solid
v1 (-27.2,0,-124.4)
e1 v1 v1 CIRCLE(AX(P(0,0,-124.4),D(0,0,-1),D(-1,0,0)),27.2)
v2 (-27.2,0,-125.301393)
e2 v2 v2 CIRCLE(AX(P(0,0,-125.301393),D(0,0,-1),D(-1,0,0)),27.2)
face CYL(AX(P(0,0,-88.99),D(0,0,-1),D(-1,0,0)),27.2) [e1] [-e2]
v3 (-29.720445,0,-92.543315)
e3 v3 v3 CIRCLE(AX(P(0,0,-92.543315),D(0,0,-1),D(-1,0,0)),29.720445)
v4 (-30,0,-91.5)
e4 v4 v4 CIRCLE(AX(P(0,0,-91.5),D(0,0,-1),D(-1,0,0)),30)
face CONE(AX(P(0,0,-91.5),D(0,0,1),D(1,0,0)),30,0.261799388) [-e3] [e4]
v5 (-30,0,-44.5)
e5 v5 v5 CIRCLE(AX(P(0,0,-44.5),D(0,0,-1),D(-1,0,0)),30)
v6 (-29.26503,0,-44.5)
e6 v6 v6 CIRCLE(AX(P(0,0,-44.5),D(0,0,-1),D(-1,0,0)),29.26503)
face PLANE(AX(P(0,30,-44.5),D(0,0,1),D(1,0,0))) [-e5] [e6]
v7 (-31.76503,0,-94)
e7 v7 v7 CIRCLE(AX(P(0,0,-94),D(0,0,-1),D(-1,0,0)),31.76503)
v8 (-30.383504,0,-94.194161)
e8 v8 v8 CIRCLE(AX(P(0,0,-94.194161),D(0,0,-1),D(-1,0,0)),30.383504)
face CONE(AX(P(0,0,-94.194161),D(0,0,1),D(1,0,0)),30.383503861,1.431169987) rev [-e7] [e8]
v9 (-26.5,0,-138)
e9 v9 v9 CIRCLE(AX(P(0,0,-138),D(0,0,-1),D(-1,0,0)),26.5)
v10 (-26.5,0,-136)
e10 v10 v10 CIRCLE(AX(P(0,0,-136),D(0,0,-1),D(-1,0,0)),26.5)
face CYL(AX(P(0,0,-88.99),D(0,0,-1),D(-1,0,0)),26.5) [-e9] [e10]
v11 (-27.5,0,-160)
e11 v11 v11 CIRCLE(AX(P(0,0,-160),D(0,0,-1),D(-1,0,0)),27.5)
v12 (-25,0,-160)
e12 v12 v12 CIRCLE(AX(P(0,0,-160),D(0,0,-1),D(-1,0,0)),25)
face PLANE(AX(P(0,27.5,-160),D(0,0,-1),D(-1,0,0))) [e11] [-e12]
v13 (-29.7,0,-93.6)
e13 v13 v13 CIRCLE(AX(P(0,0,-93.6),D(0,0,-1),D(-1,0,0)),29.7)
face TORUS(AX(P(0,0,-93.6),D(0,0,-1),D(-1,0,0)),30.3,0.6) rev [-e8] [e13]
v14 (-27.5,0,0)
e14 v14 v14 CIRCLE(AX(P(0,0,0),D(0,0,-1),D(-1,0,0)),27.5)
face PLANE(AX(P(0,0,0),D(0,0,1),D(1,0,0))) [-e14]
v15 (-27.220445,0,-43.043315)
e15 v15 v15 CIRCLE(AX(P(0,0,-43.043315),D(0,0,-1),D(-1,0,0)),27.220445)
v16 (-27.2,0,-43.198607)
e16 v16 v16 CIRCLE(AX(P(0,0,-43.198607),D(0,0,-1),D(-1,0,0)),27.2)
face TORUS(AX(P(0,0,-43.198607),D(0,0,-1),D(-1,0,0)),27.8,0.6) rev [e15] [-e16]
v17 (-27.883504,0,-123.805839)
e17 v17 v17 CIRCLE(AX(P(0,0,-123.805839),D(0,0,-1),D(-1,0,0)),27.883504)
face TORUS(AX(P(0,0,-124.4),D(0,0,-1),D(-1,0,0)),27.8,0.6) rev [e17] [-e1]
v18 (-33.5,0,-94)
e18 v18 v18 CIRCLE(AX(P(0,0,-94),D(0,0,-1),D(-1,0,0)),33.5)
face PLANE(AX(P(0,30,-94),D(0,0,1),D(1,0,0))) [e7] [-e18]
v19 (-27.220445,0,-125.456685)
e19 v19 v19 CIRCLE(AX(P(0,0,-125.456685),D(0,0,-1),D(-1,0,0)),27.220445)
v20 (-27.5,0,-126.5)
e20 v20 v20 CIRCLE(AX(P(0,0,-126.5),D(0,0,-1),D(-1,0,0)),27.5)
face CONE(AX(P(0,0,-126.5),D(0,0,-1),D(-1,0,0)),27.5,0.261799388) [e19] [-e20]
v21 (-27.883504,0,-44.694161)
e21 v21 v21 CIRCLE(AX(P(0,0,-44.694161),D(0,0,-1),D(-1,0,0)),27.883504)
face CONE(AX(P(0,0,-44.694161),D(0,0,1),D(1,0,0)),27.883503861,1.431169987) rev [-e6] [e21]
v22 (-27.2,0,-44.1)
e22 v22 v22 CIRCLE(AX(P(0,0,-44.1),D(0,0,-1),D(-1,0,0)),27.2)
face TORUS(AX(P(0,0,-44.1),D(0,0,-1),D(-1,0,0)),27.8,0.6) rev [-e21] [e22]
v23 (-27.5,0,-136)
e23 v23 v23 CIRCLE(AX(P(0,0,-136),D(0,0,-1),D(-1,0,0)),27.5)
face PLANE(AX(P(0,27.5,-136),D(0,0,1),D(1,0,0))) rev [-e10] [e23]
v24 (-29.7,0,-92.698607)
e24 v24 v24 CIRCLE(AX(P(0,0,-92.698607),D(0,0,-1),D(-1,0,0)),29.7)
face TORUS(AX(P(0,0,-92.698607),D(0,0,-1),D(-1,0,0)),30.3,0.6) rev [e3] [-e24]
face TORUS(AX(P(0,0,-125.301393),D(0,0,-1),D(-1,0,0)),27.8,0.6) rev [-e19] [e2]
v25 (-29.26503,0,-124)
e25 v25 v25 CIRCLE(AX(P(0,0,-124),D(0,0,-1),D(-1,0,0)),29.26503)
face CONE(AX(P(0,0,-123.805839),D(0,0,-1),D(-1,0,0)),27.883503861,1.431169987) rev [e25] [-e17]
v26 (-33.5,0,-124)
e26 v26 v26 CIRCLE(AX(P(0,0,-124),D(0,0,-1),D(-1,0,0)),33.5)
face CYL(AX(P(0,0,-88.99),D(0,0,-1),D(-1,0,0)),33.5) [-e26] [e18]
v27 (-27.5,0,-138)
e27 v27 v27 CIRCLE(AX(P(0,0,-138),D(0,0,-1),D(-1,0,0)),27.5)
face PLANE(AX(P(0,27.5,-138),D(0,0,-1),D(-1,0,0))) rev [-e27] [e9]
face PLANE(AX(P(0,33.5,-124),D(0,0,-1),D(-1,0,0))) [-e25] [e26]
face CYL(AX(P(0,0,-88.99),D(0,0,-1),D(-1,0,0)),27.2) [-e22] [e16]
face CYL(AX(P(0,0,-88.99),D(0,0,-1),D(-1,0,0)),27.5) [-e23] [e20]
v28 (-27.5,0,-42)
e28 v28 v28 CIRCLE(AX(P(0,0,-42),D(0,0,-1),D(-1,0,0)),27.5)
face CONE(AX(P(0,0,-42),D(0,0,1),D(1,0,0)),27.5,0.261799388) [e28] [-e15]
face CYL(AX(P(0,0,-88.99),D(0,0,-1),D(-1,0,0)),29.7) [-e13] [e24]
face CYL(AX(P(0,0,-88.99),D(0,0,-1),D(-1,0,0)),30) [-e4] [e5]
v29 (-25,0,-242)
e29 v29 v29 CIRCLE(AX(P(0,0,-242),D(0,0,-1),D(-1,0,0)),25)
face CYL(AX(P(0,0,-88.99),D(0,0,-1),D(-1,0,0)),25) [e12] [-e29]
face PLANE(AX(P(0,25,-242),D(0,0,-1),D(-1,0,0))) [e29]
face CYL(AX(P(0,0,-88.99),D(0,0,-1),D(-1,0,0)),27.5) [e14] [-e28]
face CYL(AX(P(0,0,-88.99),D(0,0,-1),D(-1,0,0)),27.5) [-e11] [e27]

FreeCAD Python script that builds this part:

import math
import FreeCAD as App
import Part
import Sketcher
from FreeCAD import Vector
Q = App.Units.Quantity


def add_polygon(sketch, points):
    """Adds a closed chain of lines whose ends are joined by coincident constraints."""
    first, n = sketch.GeometryCount, len(points)
    for a, b in zip(points, points[1:] + points[:1]):
        sketch.addGeometry(Part.LineSegment(App.Vector(*a, 0), App.Vector(*b, 0)), False)
    for i in range(n):
        sketch.addConstraint(Sketcher.Constraint("Coincident", first + i, 2, first + (i + 1) % n, 1))

doc = App.newDocument("Part")
body = doc.addObject("PartDesign::Body", "Body")

# Sketch on YZ plane
sketch1 = doc.addObject("Sketcher::SketchObject", "Sketch")
body.addObject(sketch1)
sketch1.AttachmentSupport = (doc.YZ_Plane, [""])
sketch1.MapMode = "FlatFace"
add_polygon(sketch1, [(27.5, 0), (0, 0), (0, -242), (25, -242), (25, -160), (27.5, -160), (27.5, -124), (33.5, -124), (33.5, -94), (30, -94), (30, -44.5), (27.5, -44.5)])  # lines 0-11
sketch1.addConstraint(Sketcher.Constraint("Horizontal", 0))
sketch1.addConstraint(Sketcher.Constraint("Vertical", 1))
sketch1.addConstraint(Sketcher.Constraint("Horizontal", 2))
sketch1.addConstraint(Sketcher.Constraint("Vertical", 3))
sketch1.addConstraint(Sketcher.Constraint("Horizontal", 4))
sketch1.addConstraint(Sketcher.Constraint("Vertical", 5))
sketch1.addConstraint(Sketcher.Constraint("Horizontal", 6))
sketch1.addConstraint(Sketcher.Constraint("Vertical", 7))
sketch1.addConstraint(Sketcher.Constraint("Horizontal", 8))
sketch1.addConstraint(Sketcher.Constraint("Vertical", 9))
sketch1.addConstraint(Sketcher.Constraint("Horizontal", 10))
sketch1.addConstraint(Sketcher.Constraint("Vertical", 11))
sketch1.addConstraint(Sketcher.Constraint("Coincident", 0, 2, -1, 1))
sketch1.addConstraint(Sketcher.Constraint("Vertical", 5, 2, 10, 2))
sketch1.addConstraint(Sketcher.Constraint("Equal", 4, 10))
sketch1.addConstraint(Sketcher.Constraint("DistanceX", 2, 1, 2, 2, Q("25 mm")))
sketch1.addConstraint(Sketcher.Constraint("DistanceX", 6, 1, 6, 2, Q("6 mm")))
sketch1.addConstraint(Sketcher.Constraint("DistanceY", 1, 2, 1, 1, Q("242 mm")))
sketch1.addConstraint(Sketcher.Constraint("DistanceY", 3, 1, 3, 2, Q("82 mm")))
sketch1.addConstraint(Sketcher.Constraint("DistanceY", 5, 1, 5, 2, Q("36 mm")))
sketch1.addConstraint(Sketcher.Constraint("DistanceY", 7, 1, 7, 2, Q("30 mm")))
sketch1.addConstraint(Sketcher.Constraint("DistanceX", 0, 2, 0, 1, Q("27.5 mm")))
sketch1.addConstraint(Sketcher.Constraint("DistanceY", 9, 1, 9, 2, Q("49.5 mm")))
revolution = doc.addObject("PartDesign::Revolution", "Revolution")
body.addObject(revolution)
revolution.Profile = sketch1
revolution.ReferenceAxis = (sketch1, ["V_Axis"])
revolution.Angle = 360

# Sketch on YZ plane
sketch2 = doc.addObject("Sketcher::SketchObject", "Sketch001")
body.addObject(sketch2)
sketch2.AttachmentSupport = (doc.YZ_Plane, [""])
sketch2.MapMode = "FlatFace"
sketch2.addGeometry(Part.LineSegment(Vector(27.5, -42, 0), Vector(27.22, -43.04, 0)), False)
sketch2.addGeometry(Part.ArcOfCircle(Part.Circle(Vector(27.8, -43.2, 0), Vector(0, 0, 1), 0.6), math.radians(165), math.radians(180)), False)
sketch2.addGeometry(Part.LineSegment(Vector(27.2, -43.2, 0), Vector(27.2, -44.1, 0)), False)
sketch2.addGeometry(Part.ArcOfCircle(Part.Circle(Vector(27.8, -44.1, 0), Vector(0, 0, 1), 0.6), math.radians(-180), math.radians(-82)), False)
sketch2.addGeometry(Part.LineSegment(Vector(27.88, -44.69, 0), Vector(29.27, -44.5, 0)), False)
sketch2.addGeometry(Part.LineSegment(Vector(29.27, -44.5, 0), Vector(29.27, -42, 0)), False)
sketch2.addGeometry(Part.LineSegment(Vector(29.27, -42, 0), Vector(27.5, -42, 0)), False)
sketch2.addConstraint(Sketcher.Constraint("Tangent", 0, 2, 1, 1))
sketch2.addConstraint(Sketcher.Constraint("Tangent", 1, 2, 2, 1))
sketch2.addConstraint(Sketcher.Constraint("Tangent", 2, 2, 3, 1))
sketch2.addConstraint(Sketcher.Constraint("Tangent", 3, 2, 4, 1))
sketch2.addConstraint(Sketcher.Constraint("Coincident", 4, 2, 5, 1))
sketch2.addConstraint(Sketcher.Constraint("Coincident", 5, 2, 6, 1))
sketch2.addConstraint(Sketcher.Constraint("Coincident", 6, 2, 0, 1))
sketch2.addConstraint(Sketcher.Constraint("Vertical", 2))
sketch2.addConstraint(Sketcher.Constraint("Vertical", 5))
sketch2.addConstraint(Sketcher.Constraint("Horizontal", 6))
sketch2.addConstraint(Sketcher.Constraint("Equal", 1, 3))
sketch2.addConstraint(Sketcher.Constraint("Radius", 1, Q("0.6 mm")))
sketch2.addConstraint(Sketcher.Constraint("Angle", 0, Q("-105 deg")))
sketch2.addConstraint(Sketcher.Constraint("Angle", 4, Q("8 deg")))
sketch2.addConstraint(Sketcher.Constraint("DistanceY", 5, 1, 5, 2, Q("2.5 mm")))
sketch2.addConstraint(Sketcher.Constraint("DistanceY", 5, 2, -1, 1, Q("42 mm")))
sketch2.addConstraint(Sketcher.Constraint("DistanceX", -1, 1, 1, 3, Q("27.8 mm")))
sketch2.addConstraint(Sketcher.Constraint("DistanceY", 3, 3, -1, 1, Q("44.1 mm")))
sketch2.addConstraint(Sketcher.Constraint("DistanceX", -1, 1, 6, 2, Q("27.5 mm")))
groove = doc.addObject("PartDesign::Groove", "Groove")
body.addObject(groove)
groove.Profile = sketch2
groove.ReferenceAxis = (sketch2, ["V_Axis"])
groove.Angle = 360

# Sketch on YZ plane
sketch3 = doc.addObject("Sketcher::SketchObject", "Sketch002")
body.addObject(sketch3)
sketch3.AttachmentSupport = (doc.YZ_Plane, [""])
sketch3.MapMode = "FlatFace"
sketch3.addGeometry(Part.LineSegment(Vector(30, -91.5, 0), Vector(29.72, -92.54, 0)), False)
sketch3.addGeometry(Part.ArcOfCircle(Part.Circle(Vector(30.3, -92.7, 0), Vector(0, 0, 1), 0.6), math.radians(165), math.radians(180)), False)
sketch3.addGeometry(Part.LineSegment(Vector(29.7, -92.7, 0), Vector(29.7, -93.6, 0)), False)
sketch3.addGeometry(Part.ArcOfCircle(Part.Circle(Vector(30.3, -93.6, 0), Vector(0, 0, 1), 0.6), math.radians(-180), math.radians(-82)), False)
sketch3.addGeometry(Part.LineSegment(Vector(30.38, -94.19, 0), Vector(31.77, -94, 0)), False)
sketch3.addGeometry(Part.LineSegment(Vector(31.77, -94, 0), Vector(31.77, -91.5, 0)), False)
sketch3.addGeometry(Part.LineSegment(Vector(31.77, -91.5, 0), Vector(30, -91.5, 0)), False)
sketch3.addConstraint(Sketcher.Constraint("Tangent", 0, 2, 1, 1))
sketch3.addConstraint(Sketcher.Constraint("Tangent", 1, 2, 2, 1))
sketch3.addConstraint(Sketcher.Constraint("Tangent", 2, 2, 3, 1))
sketch3.addConstraint(Sketcher.Constraint("Tangent", 3, 2, 4, 1))
sketch3.addConstraint(Sketcher.Constraint("Coincident", 4, 2, 5, 1))
sketch3.addConstraint(Sketcher.Constraint("Coincident", 5, 2, 6, 1))
sketch3.addConstraint(Sketcher.Constraint("Coincident", 6, 2, 0, 1))
sketch3.addConstraint(Sketcher.Constraint("Vertical", 2))
sketch3.addConstraint(Sketcher.Constraint("Vertical", 5))
sketch3.addConstraint(Sketcher.Constraint("Horizontal", 6))
sketch3.addConstraint(Sketcher.Constraint("Equal", 1, 3))
sketch3.addConstraint(Sketcher.Constraint("Radius", 1, Q("0.6 mm")))
sketch3.addConstraint(Sketcher.Constraint("Angle", 0, Q("-105 deg")))
sketch3.addConstraint(Sketcher.Constraint("Angle", 4, Q("8 deg")))
sketch3.addConstraint(Sketcher.Constraint("DistanceY", 5, 1, 5, 2, Q("2.5 mm")))
sketch3.addConstraint(Sketcher.Constraint("DistanceY", 4, 2, -1, 1, Q("94 mm")))
sketch3.addConstraint(Sketcher.Constraint("DistanceX", -1, 1, 6, 2, Q("30 mm")))
sketch3.addConstraint(Sketcher.Constraint("DistanceX", -1, 1, 1, 3, Q("30.3 mm")))
sketch3.addConstraint(Sketcher.Constraint("DistanceY", 3, 3, -1, 1, Q("93.6 mm")))
groove2 = doc.addObject("PartDesign::Groove", "Groove001")
body.addObject(groove2)
groove2.Profile = sketch3
groove2.ReferenceAxis = (sketch3, ["V_Axis"])
groove2.Angle = 360

# Sketch on YZ plane
sketch4 = doc.addObject("Sketcher::SketchObject", "Sketch003")
body.addObject(sketch4)
sketch4.AttachmentSupport = (doc.YZ_Plane, [""])
sketch4.MapMode = "FlatFace"
sketch4.addGeometry(Part.LineSegment(Vector(27.5, -126.5, 0), Vector(27.22, -125.46, 0)), False)
sketch4.addGeometry(Part.ArcOfCircle(Part.Circle(Vector(27.8, -125.3, 0), Vector(0, 0, 1), 0.6), math.radians(180), math.radians(195)), False)
sketch4.addGeometry(Part.LineSegment(Vector(27.2, -125.3, 0), Vector(27.2, -124.4, 0)), False)
sketch4.addGeometry(Part.ArcOfCircle(Part.Circle(Vector(27.8, -124.4, 0), Vector(0, 0, 1), 0.6), math.radians(82), math.radians(180)), False)
sketch4.addGeometry(Part.LineSegment(Vector(27.88, -123.81, 0), Vector(29.27, -124, 0)), False)
sketch4.addGeometry(Part.LineSegment(Vector(29.27, -124, 0), Vector(29.27, -126.5, 0)), False)
sketch4.addGeometry(Part.LineSegment(Vector(29.27, -126.5, 0), Vector(27.5, -126.5, 0)), False)
sketch4.addConstraint(Sketcher.Constraint("Tangent", 0, 2, 1, 2))
sketch4.addConstraint(Sketcher.Constraint("Tangent", 1, 1, 2, 1))
sketch4.addConstraint(Sketcher.Constraint("Tangent", 2, 2, 3, 2))
sketch4.addConstraint(Sketcher.Constraint("Tangent", 3, 1, 4, 1))
sketch4.addConstraint(Sketcher.Constraint("Coincident", 4, 2, 5, 1))
sketch4.addConstraint(Sketcher.Constraint("Coincident", 5, 2, 6, 1))
sketch4.addConstraint(Sketcher.Constraint("Coincident", 6, 2, 0, 1))
sketch4.addConstraint(Sketcher.Constraint("Vertical", 2))
sketch4.addConstraint(Sketcher.Constraint("Vertical", 5))
sketch4.addConstraint(Sketcher.Constraint("Horizontal", 6))
sketch4.addConstraint(Sketcher.Constraint("Equal", 1, 3))
sketch4.addConstraint(Sketcher.Constraint("Radius", 1, Q("0.6 mm")))
sketch4.addConstraint(Sketcher.Constraint("Angle", 0, Q("105 deg")))
sketch4.addConstraint(Sketcher.Constraint("Angle", 4, Q("-8 deg")))
sketch4.addConstraint(Sketcher.Constraint("DistanceY", 5, 2, 5, 1, Q("2.5 mm")))
sketch4.addConstraint(Sketcher.Constraint("DistanceY", 4, 2, -1, 1, Q("124 mm")))
sketch4.addConstraint(Sketcher.Constraint("DistanceX", -1, 1, 1, 3, Q("27.8 mm")))
sketch4.addConstraint(Sketcher.Constraint("DistanceY", 3, 3, -1, 1, Q("124.4 mm")))
sketch4.addConstraint(Sketcher.Constraint("DistanceX", -1, 1, 6, 2, Q("27.5 mm")))
groove3 = doc.addObject("PartDesign::Groove", "Groove002")
body.addObject(groove3)
groove3.Profile = sketch4
groove3.ReferenceAxis = (sketch4, ["V_Axis"])
groove3.Angle = 360

# Sketch on YZ plane
sketch5 = doc.addObject("Sketcher::SketchObject", "Sketch004")
body.addObject(sketch5)
sketch5.AttachmentSupport = (doc.YZ_Plane, [""])
sketch5.MapMode = "FlatFace"
add_polygon(sketch5, [(27.5, -136), (26.5, -136), (26.5, -138), (27.5, -138)])  # lines 0-3
sketch5.addConstraint(Sketcher.Constraint("Horizontal", 0))
sketch5.addConstraint(Sketcher.Constraint("Vertical", 1))
sketch5.addConstraint(Sketcher.Constraint("Horizontal", 2))
sketch5.addConstraint(Sketcher.Constraint("Vertical", 3))
sketch5.addConstraint(Sketcher.Constraint("DistanceX", 0, 2, 0, 1, Q("1 mm")))
sketch5.addConstraint(Sketcher.Constraint("DistanceY", 1, 2, 1, 1, Q("2 mm")))
sketch5.addConstraint(Sketcher.Constraint("DistanceY", 0, 2, -1, 1, Q("136 mm")))
sketch5.addConstraint(Sketcher.Constraint("DistanceX", -1, 1, 0, 2, Q("26.5 mm")))
groove4 = doc.addObject("PartDesign::Groove", "Groove003")
body.addObject(groove4)
groove4.Profile = sketch5
groove4.ReferenceAxis = (sketch5, ["V_Axis"])
groove4.Angle = 360

doc.recompute()
